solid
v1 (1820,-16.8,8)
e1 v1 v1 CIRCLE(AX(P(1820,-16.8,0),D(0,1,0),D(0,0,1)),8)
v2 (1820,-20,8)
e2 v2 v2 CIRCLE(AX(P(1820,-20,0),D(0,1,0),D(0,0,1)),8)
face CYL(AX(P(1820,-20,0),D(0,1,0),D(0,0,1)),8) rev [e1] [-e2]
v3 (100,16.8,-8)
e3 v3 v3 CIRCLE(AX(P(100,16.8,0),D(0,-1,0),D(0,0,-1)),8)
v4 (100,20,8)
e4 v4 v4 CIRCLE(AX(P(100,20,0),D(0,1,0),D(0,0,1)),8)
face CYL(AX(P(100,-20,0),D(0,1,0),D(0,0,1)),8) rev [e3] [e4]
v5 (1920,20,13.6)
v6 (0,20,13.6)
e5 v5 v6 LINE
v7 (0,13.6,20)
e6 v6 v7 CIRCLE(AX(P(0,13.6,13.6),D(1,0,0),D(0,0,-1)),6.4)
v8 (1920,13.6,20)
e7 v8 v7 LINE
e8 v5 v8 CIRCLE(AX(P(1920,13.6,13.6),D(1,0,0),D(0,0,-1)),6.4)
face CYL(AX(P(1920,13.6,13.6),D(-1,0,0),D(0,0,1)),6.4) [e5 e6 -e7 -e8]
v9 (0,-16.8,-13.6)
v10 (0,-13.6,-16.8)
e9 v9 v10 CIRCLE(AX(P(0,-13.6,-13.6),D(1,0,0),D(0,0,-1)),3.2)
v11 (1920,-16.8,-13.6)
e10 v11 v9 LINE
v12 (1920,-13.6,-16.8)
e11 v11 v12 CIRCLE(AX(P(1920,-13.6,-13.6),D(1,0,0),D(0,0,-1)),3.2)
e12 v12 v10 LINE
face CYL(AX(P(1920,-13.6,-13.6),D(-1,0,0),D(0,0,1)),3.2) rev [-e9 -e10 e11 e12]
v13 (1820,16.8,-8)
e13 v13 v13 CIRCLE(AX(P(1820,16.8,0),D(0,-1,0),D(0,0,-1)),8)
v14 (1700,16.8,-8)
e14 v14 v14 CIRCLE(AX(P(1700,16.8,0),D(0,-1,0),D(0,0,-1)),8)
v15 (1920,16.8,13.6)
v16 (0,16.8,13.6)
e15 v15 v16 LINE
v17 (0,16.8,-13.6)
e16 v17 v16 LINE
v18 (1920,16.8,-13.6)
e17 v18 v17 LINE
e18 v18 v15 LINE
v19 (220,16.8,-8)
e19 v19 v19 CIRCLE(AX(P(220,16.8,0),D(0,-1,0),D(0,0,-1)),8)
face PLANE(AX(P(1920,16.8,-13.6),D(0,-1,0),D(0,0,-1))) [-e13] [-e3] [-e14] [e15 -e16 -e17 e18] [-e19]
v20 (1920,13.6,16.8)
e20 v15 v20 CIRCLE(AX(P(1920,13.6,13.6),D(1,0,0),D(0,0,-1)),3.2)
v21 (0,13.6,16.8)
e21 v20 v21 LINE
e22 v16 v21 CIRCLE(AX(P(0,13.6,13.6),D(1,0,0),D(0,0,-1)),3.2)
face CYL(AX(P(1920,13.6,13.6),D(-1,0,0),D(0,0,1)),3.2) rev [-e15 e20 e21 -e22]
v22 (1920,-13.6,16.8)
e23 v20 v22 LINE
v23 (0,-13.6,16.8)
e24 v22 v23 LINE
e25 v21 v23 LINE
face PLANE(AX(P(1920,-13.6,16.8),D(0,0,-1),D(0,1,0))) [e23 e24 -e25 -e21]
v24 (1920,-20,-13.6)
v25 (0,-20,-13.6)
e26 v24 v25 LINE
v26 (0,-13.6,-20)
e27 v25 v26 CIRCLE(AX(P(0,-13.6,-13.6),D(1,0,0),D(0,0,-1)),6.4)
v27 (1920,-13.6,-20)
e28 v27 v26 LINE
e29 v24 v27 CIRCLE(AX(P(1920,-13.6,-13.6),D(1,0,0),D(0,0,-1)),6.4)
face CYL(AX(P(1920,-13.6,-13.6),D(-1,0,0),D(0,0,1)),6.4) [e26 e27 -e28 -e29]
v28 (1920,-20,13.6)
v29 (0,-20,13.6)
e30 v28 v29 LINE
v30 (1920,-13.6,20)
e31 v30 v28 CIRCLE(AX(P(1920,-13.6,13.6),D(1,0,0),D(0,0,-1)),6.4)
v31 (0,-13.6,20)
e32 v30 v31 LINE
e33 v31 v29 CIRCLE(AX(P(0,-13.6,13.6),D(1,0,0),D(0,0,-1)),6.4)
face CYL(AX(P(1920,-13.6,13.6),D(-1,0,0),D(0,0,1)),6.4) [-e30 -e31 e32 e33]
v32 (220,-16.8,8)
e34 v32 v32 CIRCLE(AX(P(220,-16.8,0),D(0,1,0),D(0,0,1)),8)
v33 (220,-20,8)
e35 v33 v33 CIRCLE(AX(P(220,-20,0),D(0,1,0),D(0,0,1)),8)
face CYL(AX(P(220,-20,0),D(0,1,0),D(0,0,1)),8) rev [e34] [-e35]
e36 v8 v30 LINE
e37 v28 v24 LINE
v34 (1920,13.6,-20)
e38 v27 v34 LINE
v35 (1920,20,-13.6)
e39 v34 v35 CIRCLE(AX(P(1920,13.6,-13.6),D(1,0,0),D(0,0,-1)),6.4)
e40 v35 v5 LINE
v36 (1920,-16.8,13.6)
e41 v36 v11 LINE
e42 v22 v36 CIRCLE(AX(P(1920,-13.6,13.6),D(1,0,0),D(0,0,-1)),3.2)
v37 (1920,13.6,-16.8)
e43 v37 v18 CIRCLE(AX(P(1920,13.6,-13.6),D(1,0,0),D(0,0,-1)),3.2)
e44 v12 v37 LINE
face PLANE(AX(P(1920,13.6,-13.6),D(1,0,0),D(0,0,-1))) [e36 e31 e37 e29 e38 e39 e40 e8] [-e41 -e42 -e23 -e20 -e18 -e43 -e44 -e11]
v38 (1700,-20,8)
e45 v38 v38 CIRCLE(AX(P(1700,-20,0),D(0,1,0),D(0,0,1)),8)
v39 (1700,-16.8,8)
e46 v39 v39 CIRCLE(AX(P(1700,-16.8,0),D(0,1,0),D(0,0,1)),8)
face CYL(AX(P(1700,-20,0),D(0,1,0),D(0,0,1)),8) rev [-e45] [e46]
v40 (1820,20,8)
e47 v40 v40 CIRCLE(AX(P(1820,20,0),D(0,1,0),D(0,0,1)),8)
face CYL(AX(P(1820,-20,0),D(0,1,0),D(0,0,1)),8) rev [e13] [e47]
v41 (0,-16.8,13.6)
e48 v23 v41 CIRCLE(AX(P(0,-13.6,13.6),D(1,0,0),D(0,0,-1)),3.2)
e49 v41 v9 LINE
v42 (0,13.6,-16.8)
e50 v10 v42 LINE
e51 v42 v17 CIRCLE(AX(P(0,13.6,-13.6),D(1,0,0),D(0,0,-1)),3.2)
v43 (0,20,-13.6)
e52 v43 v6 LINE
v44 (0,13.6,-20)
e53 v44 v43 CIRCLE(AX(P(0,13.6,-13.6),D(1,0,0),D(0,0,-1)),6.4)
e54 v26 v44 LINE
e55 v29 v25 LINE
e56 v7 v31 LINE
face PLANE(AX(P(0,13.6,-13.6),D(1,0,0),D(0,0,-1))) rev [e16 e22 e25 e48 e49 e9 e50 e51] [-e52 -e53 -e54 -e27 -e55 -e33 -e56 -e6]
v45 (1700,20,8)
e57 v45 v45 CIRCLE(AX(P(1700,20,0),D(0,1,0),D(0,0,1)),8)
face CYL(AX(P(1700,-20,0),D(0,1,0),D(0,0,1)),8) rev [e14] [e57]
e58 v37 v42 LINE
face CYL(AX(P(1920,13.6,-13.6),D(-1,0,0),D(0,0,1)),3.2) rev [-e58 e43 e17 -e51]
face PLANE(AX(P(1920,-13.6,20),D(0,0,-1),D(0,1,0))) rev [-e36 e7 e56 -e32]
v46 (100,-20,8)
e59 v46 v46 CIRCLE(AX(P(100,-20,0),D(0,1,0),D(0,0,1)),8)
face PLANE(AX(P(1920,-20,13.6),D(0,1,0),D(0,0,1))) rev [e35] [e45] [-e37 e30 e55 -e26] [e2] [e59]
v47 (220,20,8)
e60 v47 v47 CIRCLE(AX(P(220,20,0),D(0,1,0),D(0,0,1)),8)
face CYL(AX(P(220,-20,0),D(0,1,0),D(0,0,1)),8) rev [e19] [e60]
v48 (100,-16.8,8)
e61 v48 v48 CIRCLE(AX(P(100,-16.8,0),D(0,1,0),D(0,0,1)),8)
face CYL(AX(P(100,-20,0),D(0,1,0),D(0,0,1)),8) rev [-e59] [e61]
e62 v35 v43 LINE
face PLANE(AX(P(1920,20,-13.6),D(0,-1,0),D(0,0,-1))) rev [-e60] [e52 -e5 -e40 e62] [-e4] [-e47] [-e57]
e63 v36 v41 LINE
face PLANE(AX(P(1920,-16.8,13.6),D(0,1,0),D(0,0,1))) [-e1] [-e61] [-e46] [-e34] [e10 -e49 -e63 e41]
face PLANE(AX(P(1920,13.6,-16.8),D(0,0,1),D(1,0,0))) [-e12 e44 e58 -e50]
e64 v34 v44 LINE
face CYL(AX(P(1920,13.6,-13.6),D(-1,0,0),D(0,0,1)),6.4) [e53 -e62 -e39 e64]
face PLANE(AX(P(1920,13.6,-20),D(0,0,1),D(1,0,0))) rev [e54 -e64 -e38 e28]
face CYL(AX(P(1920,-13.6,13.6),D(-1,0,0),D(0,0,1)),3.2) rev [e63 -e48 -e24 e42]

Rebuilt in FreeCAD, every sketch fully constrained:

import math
import FreeCAD as App
import Part
import Sketcher

V = App.Vector

doc = App.newDocument("Part")
body = doc.addObject("PartDesign::Body", "Body")

# Sketch on YZ plane
sketch1 = body.newObject("Sketcher::SketchObject", "Sketch")
sketch1.AttachmentSupport = (doc.getObject("YZ_Plane"), [""])
sketch1.MapMode = "FlatFace"
sketch1.addGeometry(Part.LineSegment(V(-20, 13.6, 0), V(-20, -13.6, 0)), False)
sketch1.addGeometry(Part.ArcOfCircle(Part.Circle(V(-13.6, -13.6, 0), V(0, 0, 1), 6.4), math.radians(180), math.radians(270)), False)
sketch1.addGeometry(Part.LineSegment(V(-13.6, -20, 0), V(13.6, -20, 0)), False)
sketch1.addGeometry(Part.ArcOfCircle(Part.Circle(V(13.6, -13.6, 0), V(0, 0, 1), 6.4), math.radians(-90), math.radians(0)), False)
sketch1.addGeometry(Part.LineSegment(V(20, -13.6, 0), V(20, 13.6, 0)), False)
sketch1.addGeometry(Part.ArcOfCircle(Part.Circle(V(13.6, 13.6, 0), V(0, 0, 1), 6.4), math.radians(0), math.radians(90)), False)
sketch1.addGeometry(Part.LineSegment(V(13.6, 20, 0), V(-13.6, 20, 0)), False)
sketch1.addGeometry(Part.ArcOfCircle(Part.Circle(V(-13.6, 13.6, 0), V(0, 0, 1), 6.4), math.radians(90), math.radians(180)), False)
sketch1.addGeometry(Part.LineSegment(V(-16.8, -13.6, 0), V(-16.8, 13.6, 0)), False)
sketch1.addGeometry(Part.ArcOfCircle(Part.Circle(V(-13.6, 13.6, 0), V(0, 0, 1), 3.2), math.radians(90), math.radians(180)), False)
sketch1.addGeometry(Part.LineSegment(V(-13.6, 16.8, 0), V(13.6, 16.8, 0)), False)
sketch1.addGeometry(Part.ArcOfCircle(Part.Circle(V(13.6, 13.6, 0), V(0, 0, 1), 3.2), math.radians(0), math.radians(90)), False)
sketch1.addGeometry(Part.LineSegment(V(16.8, 13.6, 0), V(16.8, -13.6, 0)), False)
sketch1.addGeometry(Part.ArcOfCircle(Part.Circle(V(13.6, -13.6, 0), V(0, 0, 1), 3.2), math.radians(-90), math.radians(0)), False)
sketch1.addGeometry(Part.LineSegment(V(13.6, -16.8, 0), V(-13.6, -16.8, 0)), False)
sketch1.addGeometry(Part.ArcOfCircle(Part.Circle(V(-13.6, -13.6, 0), V(0, 0, 1), 3.2), math.radians(180), math.radians(270)), False)
sketch1.addConstraint(Sketcher.Constraint("Tangent", 0, 2, 1, 1))
sketch1.addConstraint(Sketcher.Constraint("Tangent", 1, 2, 2, 1))
sketch1.addConstraint(Sketcher.Constraint("Tangent", 2, 2, 3, 1))
sketch1.addConstraint(Sketcher.Constraint("Tangent", 3, 2, 4, 1))
sketch1.addConstraint(Sketcher.Constraint("Tangent", 4, 2, 5, 1))
sketch1.addConstraint(Sketcher.Constraint("Tangent", 5, 2, 6, 1))
sketch1.addConstraint(Sketcher.Constraint("Tangent", 6, 2, 7, 1))
sketch1.addConstraint(Sketcher.Constraint("Tangent", 7, 2, 0, 1))
sketch1.addConstraint(Sketcher.Constraint("Tangent", 8, 2, 9, 2))
sketch1.addConstraint(Sketcher.Constraint("Tangent", 9, 1, 10, 1))
sketch1.addConstraint(Sketcher.Constraint("Tangent", 10, 2, 11, 2))
sketch1.addConstraint(Sketcher.Constraint("Tangent", 11, 1, 12, 1))
sketch1.addConstraint(Sketcher.Constraint("Tangent", 12, 2, 13, 2))
sketch1.addConstraint(Sketcher.Constraint("Tangent", 13, 1, 14, 1))
sketch1.addConstraint(Sketcher.Constraint("Tangent", 14, 2, 15, 2))
sketch1.addConstraint(Sketcher.Constraint("Tangent", 15, 1, 8, 1))
sketch1.addConstraint(Sketcher.Constraint("Vertical", 0))
sketch1.addConstraint(Sketcher.Constraint("Horizontal", 2))
sketch1.addConstraint(Sketcher.Constraint("Vertical", 4))
sketch1.addConstraint(Sketcher.Constraint("Horizontal", 6))
sketch1.addConstraint(Sketcher.Constraint("Vertical", 8))
sketch1.addConstraint(Sketcher.Constraint("Horizontal", 10))
sketch1.addConstraint(Sketcher.Constraint("Vertical", 12))
sketch1.addConstraint(Sketcher.Constraint("Horizontal", 14))
sketch1.addConstraint(Sketcher.Constraint("Coincident", 9, 3, 7, 3))
sketch1.addConstraint(Sketcher.Constraint("Coincident", 11, 3, 5, 3))
sketch1.addConstraint(Sketcher.Constraint("Coincident", 13, 3, 3, 3))
sketch1.addConstraint(Sketcher.Constraint("Equal", 1, 3))
sketch1.addConstraint(Sketcher.Constraint("Equal", 3, 5))
sketch1.addConstraint(Sketcher.Constraint("Equal", 5, 7))
sketch1.addConstraint(Sketcher.Constraint("Equal", 13, 15))
sketch1.addConstraint(Sketcher.Constraint("Symmetric", 1, 3, 5, 3, -1, 1))
sketch1.addConstraint(Sketcher.Constraint("Equal", 14, 0))
sketch1.addConstraint(Sketcher.Constraint("Radius", 1, 6.4))
sketch1.addConstraint(Sketcher.Constraint("Radius", 9, 3.2))
sketch1.addConstraint(Sketcher.Constraint("DistanceX", 2, 1, 2, 2, 27.2))
pad1 = body.newObject("PartDesign::Pad", "Pad")
pad1.Profile = sketch1
pad1.Length = 1920

# Sketch on XZ plane
sketch2 = body.newObject("Sketcher::SketchObject", "Sketch001")
sketch2.AttachmentSupport = (doc.getObject("XZ_Plane"), [""])
sketch2.MapMode = "FlatFace"
sketch2.AttachmentOffset = App.Placement(V(0, 0, -20), App.Rotation())
sketch2.addGeometry(Part.Circle(V(220, 0, 0), V(0, 0, 1), 8), False)
sketch2.addGeometry(Part.Circle(V(1700, 0, 0), V(0, 0, 1), 8), False)
sketch2.addGeometry(Part.Circle(V(100, 0, 0), V(0, 0, 1), 8), False)
sketch2.addGeometry(Part.Circle(V(1820, 0, 0), V(0, 0, 1), 8), False)
sketch2.addConstraint(Sketcher.Constraint("Equal", 0, 1))
sketch2.addConstraint(Sketcher.Constraint("Equal", 1, 2))
sketch2.addConstraint(Sketcher.Constraint("Equal", 2, 3))
sketch2.addConstraint(Sketcher.Constraint("PointOnObject", 0, 3, -1))
sketch2.addConstraint(Sketcher.Constraint("PointOnObject", 1, 3, -1))
sketch2.addConstraint(Sketcher.Constraint("PointOnObject", 2, 3, -1))
sketch2.addConstraint(Sketcher.Constraint("PointOnObject", 3, 3, -1))
sketch2.addConstraint(Sketcher.Constraint("Diameter", 0, 16.0))
sketch2.addConstraint(Sketcher.Constraint("DistanceX", -1, 1, 0, 3, 220.0))
sketch2.addConstraint(Sketcher.Constraint("DistanceX", -1, 1, 1, 3, 1700.0))
sketch2.addConstraint(Sketcher.Constraint("DistanceX", -1, 1, 2, 3, 100.0))
sketch2.addConstraint(Sketcher.Constraint("DistanceX", -1, 1, 3, 3, 1820.0))
pocket1 = body.newObject("PartDesign::Pocket", "Pocket")
pocket1.Profile = sketch2
pocket1.Type = "ThroughAll"
pocket1.Reversed = True

doc.recompute()
